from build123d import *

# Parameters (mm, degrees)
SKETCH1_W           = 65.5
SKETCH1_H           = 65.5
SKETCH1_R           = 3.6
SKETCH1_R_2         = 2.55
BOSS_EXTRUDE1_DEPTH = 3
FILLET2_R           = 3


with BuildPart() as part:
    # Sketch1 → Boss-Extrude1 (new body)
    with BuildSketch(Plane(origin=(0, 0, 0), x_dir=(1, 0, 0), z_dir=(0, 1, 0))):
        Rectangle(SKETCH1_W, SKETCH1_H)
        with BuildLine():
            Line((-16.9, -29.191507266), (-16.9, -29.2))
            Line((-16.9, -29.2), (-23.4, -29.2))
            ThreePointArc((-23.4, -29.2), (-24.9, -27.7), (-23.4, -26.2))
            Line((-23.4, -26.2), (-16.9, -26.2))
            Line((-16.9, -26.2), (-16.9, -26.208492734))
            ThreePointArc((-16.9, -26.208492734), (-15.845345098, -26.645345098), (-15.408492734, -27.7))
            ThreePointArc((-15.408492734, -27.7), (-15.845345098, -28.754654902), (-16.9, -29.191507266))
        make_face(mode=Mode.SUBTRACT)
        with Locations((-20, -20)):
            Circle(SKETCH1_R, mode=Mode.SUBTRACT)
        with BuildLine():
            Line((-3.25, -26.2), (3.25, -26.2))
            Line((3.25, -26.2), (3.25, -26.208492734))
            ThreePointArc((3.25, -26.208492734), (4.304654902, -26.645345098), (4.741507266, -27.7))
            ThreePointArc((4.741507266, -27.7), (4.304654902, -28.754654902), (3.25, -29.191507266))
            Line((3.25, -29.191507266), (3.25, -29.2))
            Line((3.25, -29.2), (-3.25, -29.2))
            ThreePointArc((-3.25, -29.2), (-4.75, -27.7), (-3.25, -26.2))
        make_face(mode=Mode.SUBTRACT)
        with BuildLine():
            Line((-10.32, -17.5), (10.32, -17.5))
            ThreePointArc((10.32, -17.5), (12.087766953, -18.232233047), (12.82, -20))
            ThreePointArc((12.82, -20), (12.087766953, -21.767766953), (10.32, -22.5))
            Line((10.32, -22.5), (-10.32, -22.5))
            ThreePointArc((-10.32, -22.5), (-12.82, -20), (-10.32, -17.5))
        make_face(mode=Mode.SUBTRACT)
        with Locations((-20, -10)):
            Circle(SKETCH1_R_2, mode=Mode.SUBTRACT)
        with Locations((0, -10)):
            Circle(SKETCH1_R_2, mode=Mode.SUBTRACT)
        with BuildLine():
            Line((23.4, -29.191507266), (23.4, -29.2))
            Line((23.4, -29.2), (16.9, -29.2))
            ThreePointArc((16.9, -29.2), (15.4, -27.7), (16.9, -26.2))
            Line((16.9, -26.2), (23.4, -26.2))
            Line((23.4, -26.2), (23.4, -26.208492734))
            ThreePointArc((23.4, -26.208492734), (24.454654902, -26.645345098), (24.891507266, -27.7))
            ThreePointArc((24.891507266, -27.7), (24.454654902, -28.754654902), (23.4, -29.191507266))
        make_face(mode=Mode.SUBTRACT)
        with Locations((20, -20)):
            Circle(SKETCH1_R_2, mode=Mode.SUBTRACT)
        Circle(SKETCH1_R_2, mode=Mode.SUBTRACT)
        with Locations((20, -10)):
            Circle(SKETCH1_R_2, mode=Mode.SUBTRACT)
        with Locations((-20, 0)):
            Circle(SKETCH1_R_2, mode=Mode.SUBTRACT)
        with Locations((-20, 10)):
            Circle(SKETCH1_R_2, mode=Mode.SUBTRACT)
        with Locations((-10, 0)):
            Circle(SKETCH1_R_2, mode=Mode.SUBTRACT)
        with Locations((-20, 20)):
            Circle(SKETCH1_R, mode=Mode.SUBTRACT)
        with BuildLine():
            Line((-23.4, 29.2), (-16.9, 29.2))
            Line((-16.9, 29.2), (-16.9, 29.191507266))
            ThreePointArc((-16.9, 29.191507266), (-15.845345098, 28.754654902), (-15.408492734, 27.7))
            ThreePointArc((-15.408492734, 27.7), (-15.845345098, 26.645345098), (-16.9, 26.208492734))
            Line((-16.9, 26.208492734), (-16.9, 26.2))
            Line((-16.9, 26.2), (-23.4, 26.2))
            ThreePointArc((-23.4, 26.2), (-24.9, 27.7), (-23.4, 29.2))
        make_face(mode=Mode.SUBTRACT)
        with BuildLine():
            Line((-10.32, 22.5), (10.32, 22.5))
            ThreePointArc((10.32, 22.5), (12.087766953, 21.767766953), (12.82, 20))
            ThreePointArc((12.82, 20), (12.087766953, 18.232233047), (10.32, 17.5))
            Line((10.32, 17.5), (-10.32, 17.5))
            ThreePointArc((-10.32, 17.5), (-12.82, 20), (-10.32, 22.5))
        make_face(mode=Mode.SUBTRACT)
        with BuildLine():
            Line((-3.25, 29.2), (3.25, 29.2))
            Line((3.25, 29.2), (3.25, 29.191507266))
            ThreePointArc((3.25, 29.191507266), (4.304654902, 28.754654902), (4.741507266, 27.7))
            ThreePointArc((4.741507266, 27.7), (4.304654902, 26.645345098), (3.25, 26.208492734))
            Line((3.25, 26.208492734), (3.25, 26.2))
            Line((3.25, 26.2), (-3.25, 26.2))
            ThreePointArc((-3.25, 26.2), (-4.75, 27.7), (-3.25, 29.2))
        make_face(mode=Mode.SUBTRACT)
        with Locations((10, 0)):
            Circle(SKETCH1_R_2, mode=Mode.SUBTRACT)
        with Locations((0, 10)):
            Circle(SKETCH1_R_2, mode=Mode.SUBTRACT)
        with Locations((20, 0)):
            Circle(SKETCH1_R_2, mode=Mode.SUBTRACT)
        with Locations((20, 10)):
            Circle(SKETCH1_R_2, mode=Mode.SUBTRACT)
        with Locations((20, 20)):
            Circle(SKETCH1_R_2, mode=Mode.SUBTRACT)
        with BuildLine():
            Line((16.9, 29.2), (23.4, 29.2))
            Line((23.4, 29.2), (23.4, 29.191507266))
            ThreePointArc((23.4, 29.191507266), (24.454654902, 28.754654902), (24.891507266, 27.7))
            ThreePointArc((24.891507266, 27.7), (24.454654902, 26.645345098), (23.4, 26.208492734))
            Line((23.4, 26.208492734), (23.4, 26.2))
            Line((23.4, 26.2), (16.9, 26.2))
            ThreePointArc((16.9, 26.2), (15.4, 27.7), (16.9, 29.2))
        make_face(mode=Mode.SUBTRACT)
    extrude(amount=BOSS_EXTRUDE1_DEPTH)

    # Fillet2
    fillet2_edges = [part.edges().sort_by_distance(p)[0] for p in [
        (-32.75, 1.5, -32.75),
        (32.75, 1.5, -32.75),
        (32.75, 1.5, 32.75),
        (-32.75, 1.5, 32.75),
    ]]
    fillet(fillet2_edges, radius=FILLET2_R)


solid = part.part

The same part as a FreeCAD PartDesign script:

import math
import FreeCAD as App
import Part
import Sketcher
from FreeCAD import Vector
Q = App.Units.Quantity


def edges_at(feature, points):
    """Names of the edges that pass closest to the given points."""
    edges = feature.Shape.Edges
    near = lambda p: min(range(len(edges)), key=lambda i: edges[i].distToShape(Part.Vertex(*p))[0])
    return sorted({f"Edge{near(p) + 1}" for p in points})


def add_polygon(sketch, points):
    """Adds a closed chain of lines whose ends are joined by coincident constraints."""
    first, n = sketch.GeometryCount, len(points)
    for a, b in zip(points, points[1:] + points[:1]):
        sketch.addGeometry(Part.LineSegment(App.Vector(*a, 0), App.Vector(*b, 0)), False)
    for i in range(n):
        sketch.addConstraint(Sketcher.Constraint("Coincident", first + i, 2, first + (i + 1) % n, 1))

doc = App.newDocument("Part")
body = doc.addObject("PartDesign::Body", "Body")

sketch1 = body.newObject("Sketcher::SketchObject", "Sketch")
sketch1.AttachmentSupport = (doc.getObject("XZ_Plane"), [""])
sketch1.MapMode = "FlatFace"
add_polygon(sketch1, [(-32.75, -32.75), (-32.75, 32.75), (32.75, 32.75), (32.75, -32.75)])
sketch1.addGeometry(Part.ArcOfCircle(Part.Circle(Vector(-16.9, 27.7, 0), Vector(0, 0, 1), 1.492), math.radians(0), math.radians(90)), False)
sketch1.addGeometry(Part.LineSegment(Vector(-16.9, 29.192, 0), Vector(-16.9, 29.2, 0)), False)
sketch1.addGeometry(Part.LineSegment(Vector(-16.9, 29.2, 0), Vector(-23.4, 29.2, 0)), False)
sketch1.addGeometry(Part.ArcOfCircle(Part.Circle(Vector(-23.4, 27.7, 0), Vector(0, 0, 1), 1.5), math.radians(90), math.radians(270)), False)
sketch1.addGeometry(Part.LineSegment(Vector(-23.4, 26.2, 0), Vector(-16.9, 26.2, 0)), False)
sketch1.addGeometry(Part.LineSegment(Vector(-16.9, 26.2, 0), Vector(-16.9, 26.208, 0)), False)
sketch1.addGeometry(Part.ArcOfCircle(Part.Circle(Vector(-16.9, 27.7, 0), Vector(0, 0, 1), 1.492), math.radians(-90), math.radians(0)), False)
sketch1.addGeometry(Part.Circle(Vector(-20, 20, 0), Vector(0, 0, 1), 3.6), False)
sketch1.addGeometry(Part.Circle(Vector(-20, 10, 0), Vector(0, 0, 1), 2.55), False)
sketch1.addGeometry(Part.Circle(Vector(-20, 0, 0), Vector(0, 0, 1), 2.55), False)
sketch1.addGeometry(Part.Circle(Vector(-10, 0, 0), Vector(0, 0, 1), 2.55), False)
sketch1.addGeometry(Part.ArcOfCircle(Part.Circle(Vector(-3.25, 27.7, 0), Vector(0, 0, 1), 1.5), math.radians(90), math.radians(270)), False)
sketch1.addGeometry(Part.LineSegment(Vector(-3.25, 26.2, 0), Vector(3.25, 26.2, 0)), False)
sketch1.addGeometry(Part.LineSegment(Vector(3.25, 26.2, 0), Vector(3.25, 26.208, 0)), False)
sketch1.addGeometry(Part.ArcOfCircle(Part.Circle(Vector(3.25, 27.7, 0), Vector(0, 0, 1), 1.492), math.radians(-90), math.radians(0)), False)
sketch1.addGeometry(Part.ArcOfCircle(Part.Circle(Vector(3.25, 27.7, 0), Vector(0, 0, 1), 1.492), math.radians(0), math.radians(90)), False)
sketch1.addGeometry(Part.LineSegment(Vector(3.25, 29.192, 0), Vector(3.25, 29.2, 0)), False)
sketch1.addGeometry(Part.LineSegment(Vector(3.25, 29.2, 0), Vector(-3.25, 29.2, 0)), False)
sketch1.addGeometry(Part.ArcOfCircle(Part.Circle(Vector(-10.32, 20, 0), Vector(0, 0, 1), 2.5), math.radians(90), math.radians(270)), False)
sketch1.addGeometry(Part.LineSegment(Vector(-10.32, 17.5, 0), Vector(10.32, 17.5, 0)), False)
sketch1.addGeometry(Part.ArcOfCircle(Part.Circle(Vector(10.32, 20, 0), Vector(0, 0, 1), 2.5), math.radians(-90), math.radians(0)), False)
sketch1.addGeometry(Part.ArcOfCircle(Part.Circle(Vector(10.32, 20, 0), Vector(0, 0, 1), 2.5), math.radians(0), math.radians(90)), False)
sketch1.addGeometry(Part.LineSegment(Vector(10.32, 22.5, 0), Vector(-10.32, 22.5, 0)), False)
sketch1.addGeometry(Part.ArcOfCircle(Part.Circle(Vector(23.4, 27.7, 0), Vector(0, 0, 1), 1.492), math.radians(0), math.radians(90)), False)
sketch1.addGeometry(Part.LineSegment(Vector(23.4, 29.192, 0), Vector(23.4, 29.2, 0)), False)
sketch1.addGeometry(Part.LineSegment(Vector(23.4, 29.2, 0), Vector(16.9, 29.2, 0)), False)
sketch1.addGeometry(Part.ArcOfCircle(Part.Circle(Vector(16.9, 27.7, 0), Vector(0, 0, 1), 1.5), math.radians(90), math.radians(270)), False)
sketch1.addGeometry(Part.LineSegment(Vector(16.9, 26.2, 0), Vector(23.4, 26.2, 0)), False)
sketch1.addGeometry(Part.LineSegment(Vector(23.4, 26.2, 0), Vector(23.4, 26.208, 0)), False)
sketch1.addGeometry(Part.ArcOfCircle(Part.Circle(Vector(23.4, 27.7, 0), Vector(0, 0, 1), 1.492), math.radians(-90), math.radians(0)), False)
sketch1.addGeometry(Part.Circle(Vector(20, 20, 0), Vector(0, 0, 1), 2.55), False)
sketch1.addGeometry(Part.Circle(Vector(0, 10, 0), Vector(0, 0, 1), 2.55), False)
sketch1.addGeometry(Part.Circle(Vector(0, 0, 0), Vector(0, 0, 1), 2.55), False)
sketch1.addGeometry(Part.Circle(Vector(10, 0, 0), Vector(0, 0, 1), 2.55), False)
sketch1.addGeometry(Part.Circle(Vector(20, 10, 0), Vector(0, 0, 1), 2.55), False)
sketch1.addGeometry(Part.Circle(Vector(20, 0, 0), Vector(0, 0, 1), 2.55), False)
sketch1.addGeometry(Part.Circle(Vector(-20, -10, 0), Vector(0, 0, 1), 2.55), False)
sketch1.addGeometry(Part.Circle(Vector(-20, -20, 0), Vector(0, 0, 1), 3.6), False)
sketch1.addGeometry(Part.ArcOfCircle(Part.Circle(Vector(-23.4, -27.7, 0), Vector(0, 0, 1), 1.5), math.radians(90), math.radians(270)), False)
sketch1.addGeometry(Part.LineSegment(Vector(-23.4, -29.2, 0), Vector(-16.9, -29.2, 0)), False)
sketch1.addGeometry(Part.LineSegment(Vector(-16.9, -29.2, 0), Vector(-16.9, -29.192, 0)), False)
sketch1.addGeometry(Part.ArcOfCircle(Part.Circle(Vector(-16.9, -27.7, 0), Vector(0, 0, 1), 1.492), math.radians(-90), math.radians(0)), False)
sketch1.addGeometry(Part.ArcOfCircle(Part.Circle(Vector(-16.9, -27.7, 0), Vector(0, 0, 1), 1.492), math.radians(0), math.radians(90)), False)
sketch1.addGeometry(Part.LineSegment(Vector(-16.9, -26.208, 0), Vector(-16.9, -26.2, 0)), False)
sketch1.addGeometry(Part.LineSegment(Vector(-16.9, -26.2, 0), Vector(-23.4, -26.2, 0)), False)
sketch1.addGeometry(Part.Circle(Vector(0, -10, 0), Vector(0, 0, 1), 2.55), False)
sketch1.addGeometry(Part.Circle(Vector(20, -10, 0), Vector(0, 0, 1), 2.55), False)
sketch1.addGeometry(Part.ArcOfCircle(Part.Circle(Vector(-10.32, -20, 0), Vector(0, 0, 1), 2.5), math.radians(90), math.radians(270)), False)
sketch1.addGeometry(Part.LineSegment(Vector(-10.32, -22.5, 0), Vector(10.32, -22.5, 0)), False)
sketch1.addGeometry(Part.ArcOfCircle(Part.Circle(Vector(10.32, -20, 0), Vector(0, 0, 1), 2.5), math.radians(-90), math.radians(0)), False)
sketch1.addGeometry(Part.ArcOfCircle(Part.Circle(Vector(10.32, -20, 0), Vector(0, 0, 1), 2.5), math.radians(0), math.radians(90)), False)
sketch1.addGeometry(Part.LineSegment(Vector(10.32, -17.5, 0), Vector(-10.32, -17.5, 0)), False)
sketch1.addGeometry(Part.ArcOfCircle(Part.Circle(Vector(-3.25, -27.7, 0), Vector(0, 0, 1), 1.5), math.radians(90), math.radians(270)), False)
sketch1.addGeometry(Part.LineSegment(Vector(-3.25, -29.2, 0), Vector(3.25, -29.2, 0)), False)
sketch1.addGeometry(Part.LineSegment(Vector(3.25, -29.2, 0), Vector(3.25, -29.192, 0)), False)
sketch1.addGeometry(Part.ArcOfCircle(Part.Circle(Vector(3.25, -27.7, 0), Vector(0, 0, 1), 1.492), math.radians(-90), math.radians(0)), False)
sketch1.addGeometry(Part.ArcOfCircle(Part.Circle(Vector(3.25, -27.7, 0), Vector(0, 0, 1), 1.492), math.radians(0), math.radians(90)), False)
sketch1.addGeometry(Part.LineSegment(Vector(3.25, -26.208, 0), Vector(3.25, -26.2, 0)), False)
sketch1.addGeometry(Part.LineSegment(Vector(3.25, -26.2, 0), Vector(-3.25, -26.2, 0)), False)
sketch1.addGeometry(Part.Circle(Vector(20, -20, 0), Vector(0, 0, 1), 2.55), False)
sketch1.addGeometry(Part.ArcOfCircle(Part.Circle(Vector(16.9, -27.7, 0), Vector(0, 0, 1), 1.5), math.radians(90), math.radians(270)), False)
sketch1.addGeometry(Part.LineSegment(Vector(16.9, -29.2, 0), Vector(23.4, -29.2, 0)), False)
sketch1.addGeometry(Part.LineSegment(Vector(23.4, -29.2, 0), Vector(23.4, -29.192, 0)), False)
sketch1.addGeometry(Part.ArcOfCircle(Part.Circle(Vector(23.4, -27.7, 0), Vector(0, 0, 1), 1.492), math.radians(-90), math.radians(0)), False)
sketch1.addGeometry(Part.ArcOfCircle(Part.Circle(Vector(23.4, -27.7, 0), Vector(0, 0, 1), 1.492), math.radians(0), math.radians(90)), False)
sketch1.addGeometry(Part.LineSegment(Vector(23.4, -26.208, 0), Vector(23.4, -26.2, 0)), False)
sketch1.addGeometry(Part.LineSegment(Vector(23.4, -26.2, 0), Vector(16.9, -26.2, 0)), False)
sketch1.addConstraint([
    Sketcher.Constraint("Coincident", 4, 2, 5, 1),
    Sketcher.Constraint("Coincident", 5, 2, 6, 1),
    Sketcher.Constraint("Tangent", 6, 2, 7, 1),
    Sketcher.Constraint("Tangent", 7, 2, 8, 1),
    Sketcher.Constraint("Coincident", 8, 2, 9, 1),
    Sketcher.Constraint("Coincident", 9, 2, 10, 1),
    Sketcher.Constraint("Tangent", 10, 2, 4, 1),
    Sketcher.Constraint("Tangent", 15, 2, 16, 1),
    Sketcher.Constraint("Coincident", 16, 2, 17, 1),
    Sketcher.Constraint("Coincident", 17, 2, 18, 1),
    Sketcher.Constraint("Tangent", 18, 2, 19, 1),
    Sketcher.Constraint("Coincident", 19, 2, 20, 1),
    Sketcher.Constraint("Coincident", 20, 2, 21, 1),
    Sketcher.Constraint("Tangent", 21, 2, 15, 1),
    Sketcher.Constraint("Tangent", 22, 2, 23, 1),
    Sketcher.Constraint("Tangent", 23, 2, 24, 1),
    Sketcher.Constraint("Tangent", 24, 2, 25, 1),
    Sketcher.Constraint("Tangent", 25, 2, 26, 1),
    Sketcher.Constraint("Tangent", 26, 2, 22, 1),
    Sketcher.Constraint("Coincident", 27, 2, 28, 1),
    Sketcher.Constraint("Coincident", 28, 2, 29, 1),
    Sketcher.Constraint("Tangent", 29, 2, 30, 1),
    Sketcher.Constraint("Tangent", 30, 2, 31, 1),
    Sketcher.Constraint("Coincident", 31, 2, 32, 1),
    Sketcher.Constraint("Coincident", 32, 2, 33, 1),
    Sketcher.Constraint("Tangent", 33, 2, 27, 1),
    Sketcher.Constraint("Tangent", 42, 2, 43, 1),
    Sketcher.Constraint("Coincident", 43, 2, 44, 1),
    Sketcher.Constraint("Coincident", 44, 2, 45, 1),
    Sketcher.Constraint("Tangent", 45, 2, 46, 1),
    Sketcher.Constraint("Coincident", 46, 2, 47, 1),
    Sketcher.Constraint("Coincident", 47, 2, 48, 1),
    Sketcher.Constraint("Tangent", 48, 2, 42, 1),
    Sketcher.Constraint("Tangent", 51, 2, 52, 1),
    Sketcher.Constraint("Tangent", 52, 2, 53, 1),
    Sketcher.Constraint("Tangent", 53, 2, 54, 1),
    Sketcher.Constraint("Tangent", 54, 2, 55, 1),
    Sketcher.Constraint("Tangent", 55, 2, 51, 1),
    Sketcher.Constraint("Tangent", 56, 2, 57, 1),
    Sketcher.Constraint("Coincident", 57, 2, 58, 1),
    Sketcher.Constraint("Coincident", 58, 2, 59, 1),
    Sketcher.Constraint("Tangent", 59, 2, 60, 1),
    Sketcher.Constraint("Coincident", 60, 2, 61, 1),
    Sketcher.Constraint("Coincident", 61, 2, 62, 1),
    Sketcher.Constraint("Tangent", 62, 2, 56, 1),
    Sketcher.Constraint("Tangent", 64, 2, 65, 1),
    Sketcher.Constraint("Coincident", 65, 2, 66, 1),
    Sketcher.Constraint("Coincident", 66, 2, 67, 1),
    Sketcher.Constraint("Tangent", 67, 2, 68, 1),
    Sketcher.Constraint("Coincident", 68, 2, 69, 1),
    Sketcher.Constraint("Coincident", 69, 2, 70, 1),
    Sketcher.Constraint("Tangent", 70, 2, 64, 1),
    Sketcher.Constraint("Vertical", 0),
    Sketcher.Constraint("Horizontal", 1),
    Sketcher.Constraint("Vertical", 2),
    Sketcher.Constraint("Horizontal", 3),
    Sketcher.Constraint("Vertical", 5),
    Sketcher.Constraint("Horizontal", 6),
    Sketcher.Constraint("Horizontal", 8),
    Sketcher.Constraint("Vertical", 9),
    Sketcher.Constraint("Horizontal", 16),
    Sketcher.Constraint("Vertical", 17),
    Sketcher.Constraint("Vertical", 20),
    Sketcher.Constraint("Horizontal", 21),
    Sketcher.Constraint("Horizontal", 23),
    Sketcher.Constraint("Horizontal", 26),
    Sketcher.Constraint("Vertical", 28),
    Sketcher.Constraint("Horizontal", 29),
    Sketcher.Constraint("Horizontal", 31),
    Sketcher.Constraint("Vertical", 32),
    Sketcher.Constraint("Horizontal", 43),
    Sketcher.Constraint("Vertical", 44),
    Sketcher.Constraint("Vertical", 47),
    Sketcher.Constraint("Horizontal", 48),
    Sketcher.Constraint("Horizontal", 52),
    Sketcher.Constraint("Horizontal", 55),
    Sketcher.Constraint("Horizontal", 57),
    Sketcher.Constraint("Vertical", 58),
    Sketcher.Constraint("Vertical", 61),
    Sketcher.Constraint("Horizontal", 62),
    Sketcher.Constraint("Horizontal", 65),
    Sketcher.Constraint("Vertical", 66),
    Sketcher.Constraint("Vertical", 69),
    Sketcher.Constraint("Horizontal", 70),
    Sketcher.Constraint("Coincident", 36, 3, -1, 1),
    Sketcher.Constraint("Equal", 4, 10),
    Sketcher.Constraint("Equal", 12, 13),
    Sketcher.Constraint("Equal", 13, 14),
    Sketcher.Constraint("Equal", 7, 15),
    Sketcher.Constraint("Equal", 10, 18),
    Sketcher.Constraint("Equal", 18, 19),
    Sketcher.Constraint("Equal", 22, 24),
    Sketcher.Constraint("Equal", 19, 27),
    Sketcher.Constraint("Equal", 15, 30),
    Sketcher.Constraint("Equal", 27, 33),
    Sketcher.Constraint("Equal", 14, 34),
    Sketcher.Constraint("Equal", 34, 35),
    Sketcher.Constraint("Equal", 35, 36),
    Sketcher.Constraint("Equal", 36, 37),
    Sketcher.Constraint("Equal", 37, 38),
    Sketcher.Constraint("Equal", 38, 39),
    Sketcher.Constraint("Equal", 39, 40),
    Sketcher.Constraint("Equal", 11, 41),
    Sketcher.Constraint("Equal", 30, 42),
    Sketcher.Constraint("Equal", 33, 45),
    Sketcher.Constraint("Equal", 45, 46),
    Sketcher.Constraint("Equal", 40, 49),
    Sketcher.Constraint("Equal", 49, 50),
    Sketcher.Constraint("Equal", 25, 51),
    Sketcher.Constraint("Equal", 51, 53),
    Sketcher.Constraint("Equal", 42, 56),
    Sketcher.Constraint("Equal", 46, 59),
    Sketcher.Constraint("Equal", 59, 60),
    Sketcher.Constraint("Equal", 50, 63),
    Sketcher.Constraint("Equal", 56, 64),
    Sketcher.Constraint("Equal", 60, 67),
    Sketcher.Constraint("Equal", 67, 68),
    Sketcher.Constraint("Symmetric", 14, 3, 37, 3, -1, 1),
    Sketcher.Constraint("Symmetric", 13, 3, 39, 3, -1, 1),
    Sketcher.Constraint("Symmetric", 38, 3, 40, 3, -1, 1),
    Sketcher.Constraint("Symmetric", 34, 3, 41, 3, -1, 1),
    Sketcher.Constraint("Symmetric", 27, 3, 42, 3, -1, 1),
    Sketcher.Constraint("Symmetric", 30, 3, 45, 3, -1, 1),
    Sketcher.Constraint("Symmetric", 35, 3, 49, 3, -1, 1),
    Sketcher.Constraint("Symmetric", 12, 3, 50, 3, -1, 1),
    Sketcher.Constraint("Symmetric", 24, 3, 51, 3, -1, 1),
    Sketcher.Constraint("Symmetric", 18, 3, 56, 3, -1, 1),
    Sketcher.Constraint("Symmetric", 15, 3, 59, 3, -1, 1),
    Sketcher.Constraint("Symmetric", 11, 3, 63, 3, -1, 1),
    Sketcher.Constraint("Symmetric", 4, 3, 64, 3, -1, 1),
    Sketcher.Constraint("Symmetric", 7, 3, 67, 3, -1, 1),
    Sketcher.Constraint("Symmetric", 0, 2, 2, 2, -1, 1),
    Sketcher.Constraint("Symmetric", 28, 2, 42, 2, -1, 1),
    Sketcher.Constraint("Symmetric", 20, 2, 56, 2, -1, 1),
    Sketcher.Constraint("Symmetric", 5, 2, 64, 2, -1, 1),
    Sketcher.Constraint("Symmetric", 7, 3, 27, 3, -2),
    Sketcher.Constraint("Symmetric", 11, 3, 34, 3, -2),
    Sketcher.Constraint("Symmetric", 12, 3, 38, 3, -2),
    Sketcher.Constraint("Symmetric", 10, 2, 45, 2, -1),
    Sketcher.Constraint("Symmetric", 24, 2, 53, 2, -1),
    Sketcher.Constraint("Symmetric", 18, 2, 59, 2, -1),
    Sketcher.Constraint("PointOnObject", 13, 3, -1),
    Sketcher.Constraint("PointOnObject", 14, 3, -1),
    Sketcher.Constraint("PointOnObject", 35, 3, -2),
    Sketcher.Constraint("Horizontal", 10, 3, 15, 3),
    Sketcher.Constraint("Horizontal", 11, 3, 22, 3),
    Sketcher.Constraint("Horizontal", 12, 3, 35, 3),
    Sketcher.Constraint("Horizontal", 33, 3, 10, 2),
    Sketcher.Constraint("Horizontal", 10, 2, 18, 2),
    Sketcher.Constraint("Horizontal", 34, 3, 24, 2),
    Sketcher.Constraint("Horizontal", 18, 2, 33, 2),
    Sketcher.Constraint("Horizontal", 59, 2, 67, 2),
    Sketcher.Constraint("Vertical", 11, 3, 12, 3),
    Sketcher.Constraint("Vertical", 12, 3, 13, 3),
    Sketcher.Constraint("Vertical", 22, 3, 51, 3),
    Sketcher.Constraint("Vertical", 5, 2, 8, 2),
    Sketcher.Constraint("Vertical", 60, 3, 16, 2),
    Sketcher.Constraint("Vertical", 28, 2, 31, 2),
    Sketcher.Constraint("Vertical", 9, 2, 43, 2),
    Sketcher.Constraint("Vertical", 44, 2, 46, 2),
    Sketcher.Constraint("Vertical", 20, 2, 57, 2),
    Sketcher.Constraint("Vertical", 58, 2, 60, 2),
    Sketcher.Constraint("Vertical", 32, 2, 65, 2),
    Sketcher.Constraint("Vertical", 66, 2, 68, 2),
    Sketcher.Constraint("Equal", 8, 16),
    Sketcher.Constraint("Equal", 3, 0),
    Sketcher.Constraint("Diameter", 11, Q("7.2 mm")),
    Sketcher.Constraint("Diameter", 12, Q("5.1 mm")),
    Sketcher.Constraint("Radius", 7, Q("1.5 mm")),
    Sketcher.Constraint("Radius", 22, Q("2.5 mm")),
    Sketcher.Constraint("DistanceX", 1, 1, 1, 2, Q("65.5 mm")),
    Sketcher.Constraint("DistanceX", 6, 2, 6, 1, Q("6.5 mm")),
    Sketcher.Constraint("DistanceX", 11, 3, -1, 1, Q("20 mm")),
    Sketcher.Constraint("DistanceY", -1, 1, 11, 3, Q("20 mm")),
    Sketcher.Constraint("DistanceY", -1, 1, 12, 3, Q("10 mm")),
    Sketcher.Constraint("DistanceX", 14, 3, -1, 1, Q("10 mm")),
    Sketcher.Constraint("DistanceX", 23, 1, 23, 2, Q("20.64 mm")),
    Sketcher.Constraint("DistanceX", 4, 3, -1, 1, Q("16.9 mm")),
    Sketcher.Constraint("DistanceY", -1, 1, 4, 3, Q("27.7 mm")),
    Sketcher.Constraint("Radius", 4, Q("1.491507 mm")),
])
pad1 = body.newObject("PartDesign::Pad", "Pad")
pad1.Profile = sketch1
pad1.Length = 3
pad1.Reversed = True
doc.recompute()

fillet = body.newObject("PartDesign::Fillet", "Fillet")
fillet.Base = (pad1, edges_at(pad1, [
    (-32.75, 1.5, -32.75),
    (32.75, 1.5, -32.75),
    (32.75, 1.5, 32.75),
    (-32.75, 1.5, 32.75),
]))
fillet.Radius = 3

doc.recompute()
